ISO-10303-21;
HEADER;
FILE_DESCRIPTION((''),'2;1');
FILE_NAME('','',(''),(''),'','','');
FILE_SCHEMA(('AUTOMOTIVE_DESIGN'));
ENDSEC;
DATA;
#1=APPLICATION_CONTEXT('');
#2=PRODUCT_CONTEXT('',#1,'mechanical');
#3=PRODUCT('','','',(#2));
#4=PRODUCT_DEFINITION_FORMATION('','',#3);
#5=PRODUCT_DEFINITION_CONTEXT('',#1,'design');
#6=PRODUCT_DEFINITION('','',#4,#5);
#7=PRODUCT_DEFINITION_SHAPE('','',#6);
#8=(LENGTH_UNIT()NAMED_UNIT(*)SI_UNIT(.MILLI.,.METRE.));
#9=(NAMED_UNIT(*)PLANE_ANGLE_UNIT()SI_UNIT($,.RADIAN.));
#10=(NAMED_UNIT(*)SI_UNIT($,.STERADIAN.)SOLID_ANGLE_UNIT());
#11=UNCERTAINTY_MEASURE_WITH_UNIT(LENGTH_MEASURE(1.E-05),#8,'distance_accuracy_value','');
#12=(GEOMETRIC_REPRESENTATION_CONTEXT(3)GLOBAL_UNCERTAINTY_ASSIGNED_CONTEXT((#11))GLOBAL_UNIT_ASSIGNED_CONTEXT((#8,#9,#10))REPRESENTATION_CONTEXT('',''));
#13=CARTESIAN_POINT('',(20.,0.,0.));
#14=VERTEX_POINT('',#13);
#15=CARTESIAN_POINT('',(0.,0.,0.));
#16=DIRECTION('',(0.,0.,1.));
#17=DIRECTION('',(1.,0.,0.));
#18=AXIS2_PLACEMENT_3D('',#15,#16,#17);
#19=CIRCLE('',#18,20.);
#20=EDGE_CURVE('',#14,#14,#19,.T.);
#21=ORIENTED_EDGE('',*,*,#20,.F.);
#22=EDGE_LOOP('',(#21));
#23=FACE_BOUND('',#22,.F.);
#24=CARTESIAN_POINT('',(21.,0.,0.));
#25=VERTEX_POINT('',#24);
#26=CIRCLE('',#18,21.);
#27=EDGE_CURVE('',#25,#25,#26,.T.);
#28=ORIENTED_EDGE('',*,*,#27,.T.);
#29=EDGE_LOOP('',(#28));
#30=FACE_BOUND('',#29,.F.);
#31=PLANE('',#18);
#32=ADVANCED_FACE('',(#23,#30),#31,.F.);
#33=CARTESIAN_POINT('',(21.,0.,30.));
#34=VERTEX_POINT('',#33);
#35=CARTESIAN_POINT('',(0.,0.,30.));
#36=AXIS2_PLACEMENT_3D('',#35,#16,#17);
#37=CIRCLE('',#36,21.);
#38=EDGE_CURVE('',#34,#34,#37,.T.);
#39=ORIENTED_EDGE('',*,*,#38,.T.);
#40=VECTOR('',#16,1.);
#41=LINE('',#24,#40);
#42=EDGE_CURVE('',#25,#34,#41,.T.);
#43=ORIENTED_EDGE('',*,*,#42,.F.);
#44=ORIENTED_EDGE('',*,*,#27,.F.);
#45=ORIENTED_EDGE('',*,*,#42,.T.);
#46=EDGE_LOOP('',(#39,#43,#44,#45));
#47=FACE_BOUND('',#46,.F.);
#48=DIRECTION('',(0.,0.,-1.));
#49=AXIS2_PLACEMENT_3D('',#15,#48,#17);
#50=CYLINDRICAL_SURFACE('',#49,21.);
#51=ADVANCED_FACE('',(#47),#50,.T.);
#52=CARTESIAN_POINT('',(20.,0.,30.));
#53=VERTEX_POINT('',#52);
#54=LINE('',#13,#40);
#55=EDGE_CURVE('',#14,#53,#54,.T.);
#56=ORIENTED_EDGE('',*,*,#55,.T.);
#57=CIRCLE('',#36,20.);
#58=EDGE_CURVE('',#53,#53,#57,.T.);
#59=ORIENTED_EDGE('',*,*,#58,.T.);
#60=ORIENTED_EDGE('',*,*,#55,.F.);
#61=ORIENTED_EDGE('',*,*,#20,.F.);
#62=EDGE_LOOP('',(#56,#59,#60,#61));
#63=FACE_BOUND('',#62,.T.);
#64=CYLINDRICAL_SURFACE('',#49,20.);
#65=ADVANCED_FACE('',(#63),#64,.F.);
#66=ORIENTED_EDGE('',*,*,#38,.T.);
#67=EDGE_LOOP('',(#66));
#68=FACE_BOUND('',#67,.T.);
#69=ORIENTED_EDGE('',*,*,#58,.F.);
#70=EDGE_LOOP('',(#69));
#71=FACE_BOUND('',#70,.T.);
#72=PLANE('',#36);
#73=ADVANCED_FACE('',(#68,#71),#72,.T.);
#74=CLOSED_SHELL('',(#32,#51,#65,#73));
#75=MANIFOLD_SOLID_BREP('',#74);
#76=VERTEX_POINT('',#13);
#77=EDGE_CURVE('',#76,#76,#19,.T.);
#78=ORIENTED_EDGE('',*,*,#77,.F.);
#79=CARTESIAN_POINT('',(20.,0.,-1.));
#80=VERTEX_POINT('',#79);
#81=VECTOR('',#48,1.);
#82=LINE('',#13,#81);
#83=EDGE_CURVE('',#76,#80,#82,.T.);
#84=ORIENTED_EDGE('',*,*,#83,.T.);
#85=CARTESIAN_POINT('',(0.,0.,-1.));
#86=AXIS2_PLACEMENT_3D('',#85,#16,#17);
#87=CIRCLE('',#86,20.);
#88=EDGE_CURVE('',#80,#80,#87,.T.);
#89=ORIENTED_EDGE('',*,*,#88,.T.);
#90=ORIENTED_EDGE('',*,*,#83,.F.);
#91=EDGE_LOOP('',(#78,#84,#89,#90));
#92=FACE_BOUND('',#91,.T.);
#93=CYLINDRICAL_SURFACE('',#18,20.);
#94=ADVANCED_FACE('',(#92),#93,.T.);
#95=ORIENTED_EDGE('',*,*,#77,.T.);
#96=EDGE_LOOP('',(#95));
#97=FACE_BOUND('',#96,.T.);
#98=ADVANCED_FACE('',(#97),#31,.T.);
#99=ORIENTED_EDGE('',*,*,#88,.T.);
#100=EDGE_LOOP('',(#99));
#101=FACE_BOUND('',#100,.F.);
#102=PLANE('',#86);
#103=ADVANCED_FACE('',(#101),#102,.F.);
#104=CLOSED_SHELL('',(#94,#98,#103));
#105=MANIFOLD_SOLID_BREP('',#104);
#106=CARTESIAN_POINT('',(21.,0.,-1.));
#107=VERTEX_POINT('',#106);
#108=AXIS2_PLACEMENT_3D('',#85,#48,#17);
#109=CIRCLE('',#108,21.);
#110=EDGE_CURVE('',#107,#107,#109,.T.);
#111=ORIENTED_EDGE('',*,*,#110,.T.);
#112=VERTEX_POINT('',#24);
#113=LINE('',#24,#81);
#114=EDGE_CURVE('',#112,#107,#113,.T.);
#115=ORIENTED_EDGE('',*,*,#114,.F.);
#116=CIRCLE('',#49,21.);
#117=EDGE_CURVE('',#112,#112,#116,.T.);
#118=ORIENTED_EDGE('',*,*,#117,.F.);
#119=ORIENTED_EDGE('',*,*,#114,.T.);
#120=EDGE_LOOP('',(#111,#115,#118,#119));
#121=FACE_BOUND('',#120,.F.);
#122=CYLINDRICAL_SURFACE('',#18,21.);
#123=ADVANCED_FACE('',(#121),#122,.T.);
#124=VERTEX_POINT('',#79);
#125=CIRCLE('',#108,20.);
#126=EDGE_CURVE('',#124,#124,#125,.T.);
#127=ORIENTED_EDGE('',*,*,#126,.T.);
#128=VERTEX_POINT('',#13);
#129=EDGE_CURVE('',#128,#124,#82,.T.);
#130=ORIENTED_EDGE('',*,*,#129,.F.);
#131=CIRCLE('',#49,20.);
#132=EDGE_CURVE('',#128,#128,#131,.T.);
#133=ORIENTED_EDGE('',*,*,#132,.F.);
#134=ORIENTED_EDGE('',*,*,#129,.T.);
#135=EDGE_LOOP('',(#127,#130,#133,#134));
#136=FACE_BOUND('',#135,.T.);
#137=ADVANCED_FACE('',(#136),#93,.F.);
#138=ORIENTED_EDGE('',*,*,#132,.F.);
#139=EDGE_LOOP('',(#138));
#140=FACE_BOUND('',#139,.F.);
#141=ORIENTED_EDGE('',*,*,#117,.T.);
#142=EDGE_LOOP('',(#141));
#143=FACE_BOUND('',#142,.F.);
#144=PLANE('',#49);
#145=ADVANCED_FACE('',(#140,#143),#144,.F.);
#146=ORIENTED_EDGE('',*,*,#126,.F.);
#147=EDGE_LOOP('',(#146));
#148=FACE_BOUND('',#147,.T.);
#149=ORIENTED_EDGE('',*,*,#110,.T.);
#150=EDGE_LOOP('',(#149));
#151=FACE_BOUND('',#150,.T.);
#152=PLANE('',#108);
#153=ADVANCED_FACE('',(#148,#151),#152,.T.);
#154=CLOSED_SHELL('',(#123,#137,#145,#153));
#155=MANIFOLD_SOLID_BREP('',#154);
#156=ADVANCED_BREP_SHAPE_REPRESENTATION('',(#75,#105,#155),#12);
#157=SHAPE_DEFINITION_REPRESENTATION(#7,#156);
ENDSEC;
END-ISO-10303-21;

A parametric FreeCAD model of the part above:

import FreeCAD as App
import Part
import Sketcher

V = App.Vector
Q = App.Units.Quantity

doc = App.newDocument("Part")
body = doc.addObject("PartDesign::Body", "Body")

sketch1 = body.newObject("Sketcher::SketchObject", "Sketch")
sketch1.AttachmentSupport = (doc.getObject("XY_Plane"), [""])
sketch1.MapMode = "FlatFace"
sketch1.addGeometry(Part.Circle(V(0, 0, 0), V(0, 0, 1), 21), False)
sketch1.addGeometry(Part.Circle(V(0, 0, 0), V(0, 0, 1), 20), False)
sketch1.addConstraint(Sketcher.Constraint("Coincident", 0, 3, -1, 1))
sketch1.addConstraint(Sketcher.Constraint("Coincident", 1, 3, -1, 1))
sketch1.addConstraint(Sketcher.Constraint("Diameter", 0, Q("42 mm")))
sketch1.addConstraint(Sketcher.Constraint("Diameter", 1, Q("40 mm")))
pad1 = body.newObject("PartDesign::Pad", "Pad")
pad1.Profile = sketch1
pad1.Length = 30
body2 = doc.addObject("PartDesign::Body", "Body001")

sketch2 = body2.newObject("Sketcher::SketchObject", "Sketch001")
sketch2.AttachmentSupport = (doc.getObject("XY_Plane001"), [""])
sketch2.MapMode = "FlatFace"
sketch2.addGeometry(Part.Circle(V(0, 0, 0), V(0, 0, 1), 20), False)
sketch2.addConstraint(Sketcher.Constraint("Coincident", 0, 3, -1, 1))
sketch2.addConstraint(Sketcher.Constraint("Diameter", 0, Q("40 mm")))
pad2 = body2.newObject("PartDesign::Pad", "Pad001")
pad2.Profile = sketch2
pad2.Length = 1
pad2.Reversed = True
body3 = doc.addObject("PartDesign::Body", "Body002")

sketch3 = body3.newObject("Sketcher::SketchObject", "Sketch002")
sketch3.AttachmentSupport = (doc.getObject("XY_Plane002"), [""])
sketch3.MapMode = "FlatFace"
sketch3.addGeometry(Part.Circle(V(0, 0, 0), V(0, 0, 1), 21), False)
sketch3.addGeometry(Part.Circle(V(0, 0, 0), V(0, 0, 1), 20), False)
sketch3.addConstraint(Sketcher.Constraint("Coincident", 0, 3, -1, 1))
sketch3.addConstraint(Sketcher.Constraint("Coincident", 1, 3, -1, 1))
sketch3.addConstraint(Sketcher.Constraint("Diameter", 0, Q("42 mm")))
sketch3.addConstraint(Sketcher.Constraint("Diameter", 1, Q("40 mm")))
pad3 = body3.newObject("PartDesign::Pad", "Pad002")
pad3.Profile = sketch3
pad3.Length = 1
pad3.Reversed = True

doc.recompute()
